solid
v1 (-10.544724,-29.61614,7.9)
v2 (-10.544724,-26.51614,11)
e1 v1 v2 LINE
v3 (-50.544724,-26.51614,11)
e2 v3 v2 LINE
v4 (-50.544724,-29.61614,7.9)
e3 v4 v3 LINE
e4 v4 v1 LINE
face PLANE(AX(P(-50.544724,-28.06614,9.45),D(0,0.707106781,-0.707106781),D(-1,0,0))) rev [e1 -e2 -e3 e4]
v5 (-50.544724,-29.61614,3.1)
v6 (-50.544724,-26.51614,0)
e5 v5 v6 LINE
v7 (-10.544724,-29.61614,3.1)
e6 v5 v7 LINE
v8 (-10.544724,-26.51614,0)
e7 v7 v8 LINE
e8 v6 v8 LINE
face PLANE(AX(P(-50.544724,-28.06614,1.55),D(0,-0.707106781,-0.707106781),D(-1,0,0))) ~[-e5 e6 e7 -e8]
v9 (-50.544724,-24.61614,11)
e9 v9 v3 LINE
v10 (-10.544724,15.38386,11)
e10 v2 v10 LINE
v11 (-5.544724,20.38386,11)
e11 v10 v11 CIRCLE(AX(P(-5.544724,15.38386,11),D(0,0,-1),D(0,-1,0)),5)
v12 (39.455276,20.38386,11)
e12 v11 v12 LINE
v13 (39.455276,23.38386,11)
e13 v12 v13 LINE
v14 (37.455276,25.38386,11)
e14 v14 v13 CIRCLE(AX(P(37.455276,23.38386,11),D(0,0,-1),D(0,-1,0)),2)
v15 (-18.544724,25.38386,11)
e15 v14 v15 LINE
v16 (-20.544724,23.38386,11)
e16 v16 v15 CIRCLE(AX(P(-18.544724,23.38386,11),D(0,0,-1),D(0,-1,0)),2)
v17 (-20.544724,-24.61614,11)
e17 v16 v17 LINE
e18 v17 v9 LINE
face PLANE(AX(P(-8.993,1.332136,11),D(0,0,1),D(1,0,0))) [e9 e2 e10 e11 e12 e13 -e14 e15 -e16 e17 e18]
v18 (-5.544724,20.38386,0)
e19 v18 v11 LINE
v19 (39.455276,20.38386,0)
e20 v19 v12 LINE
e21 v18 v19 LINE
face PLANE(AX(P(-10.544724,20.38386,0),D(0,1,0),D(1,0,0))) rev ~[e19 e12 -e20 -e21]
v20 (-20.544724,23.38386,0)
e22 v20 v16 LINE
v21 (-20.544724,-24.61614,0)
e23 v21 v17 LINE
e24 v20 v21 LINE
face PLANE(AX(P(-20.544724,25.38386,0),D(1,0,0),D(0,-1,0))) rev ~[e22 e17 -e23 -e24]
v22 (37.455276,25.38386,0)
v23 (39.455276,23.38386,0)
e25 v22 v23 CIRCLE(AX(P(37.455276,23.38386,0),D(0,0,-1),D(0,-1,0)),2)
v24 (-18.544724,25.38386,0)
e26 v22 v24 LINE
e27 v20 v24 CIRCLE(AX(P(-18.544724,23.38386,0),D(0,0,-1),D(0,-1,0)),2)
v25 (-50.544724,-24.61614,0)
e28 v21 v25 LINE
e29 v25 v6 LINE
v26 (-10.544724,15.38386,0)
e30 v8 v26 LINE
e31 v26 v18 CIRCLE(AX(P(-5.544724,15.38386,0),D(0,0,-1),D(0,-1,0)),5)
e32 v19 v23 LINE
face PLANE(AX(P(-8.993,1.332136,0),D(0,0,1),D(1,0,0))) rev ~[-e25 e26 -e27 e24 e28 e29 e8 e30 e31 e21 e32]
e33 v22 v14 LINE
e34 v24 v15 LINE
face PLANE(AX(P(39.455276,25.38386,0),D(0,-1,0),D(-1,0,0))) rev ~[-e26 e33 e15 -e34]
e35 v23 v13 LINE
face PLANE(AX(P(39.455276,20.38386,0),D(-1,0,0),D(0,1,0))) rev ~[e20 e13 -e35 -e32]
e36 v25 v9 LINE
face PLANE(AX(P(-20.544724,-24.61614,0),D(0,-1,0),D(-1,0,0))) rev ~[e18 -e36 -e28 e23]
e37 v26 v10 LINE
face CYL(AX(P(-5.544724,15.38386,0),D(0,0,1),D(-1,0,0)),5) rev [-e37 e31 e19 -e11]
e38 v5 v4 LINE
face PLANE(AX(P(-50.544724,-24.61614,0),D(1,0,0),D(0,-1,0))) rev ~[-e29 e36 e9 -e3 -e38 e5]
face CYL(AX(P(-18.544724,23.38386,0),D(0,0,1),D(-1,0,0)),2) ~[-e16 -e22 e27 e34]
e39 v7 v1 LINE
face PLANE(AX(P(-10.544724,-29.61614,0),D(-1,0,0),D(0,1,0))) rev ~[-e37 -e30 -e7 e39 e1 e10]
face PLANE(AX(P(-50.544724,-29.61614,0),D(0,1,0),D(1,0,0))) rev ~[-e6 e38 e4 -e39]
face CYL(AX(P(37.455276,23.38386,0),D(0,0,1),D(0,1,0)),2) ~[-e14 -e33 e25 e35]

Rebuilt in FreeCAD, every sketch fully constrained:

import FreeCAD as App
import Part
import Sketcher
from FreeCAD import Vector
Q = App.Units.Quantity


def edges_at(feature, points):
    """Names of the edges that pass closest to the given points."""
    edges = feature.Shape.Edges
    near = lambda p: min(range(len(edges)), key=lambda i: edges[i].distToShape(Part.Vertex(*p))[0])
    return sorted({f"Edge{near(p) + 1}" for p in points})

doc = App.newDocument("Part")
body = doc.addObject("PartDesign::Body", "Body")

sketch1 = body.newObject("Sketcher::SketchObject", "Sketch")
sketch1.AttachmentSupport = (doc.getObject("XY_Plane"), [""])
sketch1.MapMode = "FlatFace"
sketch1.addGeometry([
    Part.LineSegment(Vector(-51, -25, 0), Vector(-51, -30, 0)),
    Part.LineSegment(Vector(-51, -30, 0), Vector(-11, -30, 0)),
    Part.LineSegment(Vector(-11, -30, 0), Vector(-11, 20, 0)),
    Part.LineSegment(Vector(-11, 20, 0), Vector(39, 20, 0)),
    Part.LineSegment(Vector(39, 20, 0), Vector(39, 25, 0)),
    Part.LineSegment(Vector(39, 25, 0), Vector(-21, 25, 0)),
    Part.LineSegment(Vector(-21, 25, 0), Vector(-21, -25, 0)),
    Part.LineSegment(Vector(-21, -25, 0), Vector(-51, -25, 0)),
], False)
sketch1.addConstraint([
    Sketcher.Constraint("Coincident", 0, 2, 1, 1),
    Sketcher.Constraint("Coincident", 1, 2, 2, 1),
    Sketcher.Constraint("Coincident", 2, 2, 3, 1),
    Sketcher.Constraint("Coincident", 3, 2, 4, 1),
    Sketcher.Constraint("Coincident", 4, 2, 5, 1),
    Sketcher.Constraint("Coincident", 5, 2, 6, 1),
    Sketcher.Constraint("Coincident", 6, 2, 7, 1),
    Sketcher.Constraint("Coincident", 7, 2, 0, 1),
    Sketcher.Constraint("Vertical", 0),
    Sketcher.Constraint("Horizontal", 1),
    Sketcher.Constraint("Vertical", 2),
    Sketcher.Constraint("Horizontal", 3),
    Sketcher.Constraint("Vertical", 4),
    Sketcher.Constraint("Horizontal", 5),
    Sketcher.Constraint("Vertical", 6),
    Sketcher.Constraint("Horizontal", 7),
    Sketcher.Constraint("Equal", 3, 2),
    Sketcher.Constraint("Equal", 0, 4),
    Sketcher.Constraint("DistanceX", 1, 1, 1, 2, Q("40 mm")),
    Sketcher.Constraint("DistanceX", 3, 1, 3, 2, Q("50 mm")),
    Sketcher.Constraint("DistanceX", 5, 2, 5, 1, Q("60 mm")),
    Sketcher.Constraint("DistanceY", 0, 2, 0, 1, Q("5 mm")),
    Sketcher.Constraint("DistanceY", 0, 2, -1, 1, Q("29.61614 mm")),
    Sketcher.Constraint("DistanceX", 0, 2, -1, 1, Q("50.544724 mm")),
])
pad1 = body.newObject("PartDesign::Pad", "Pad")
pad1.Profile = sketch1
pad1.Length = 11
doc.recompute()

chamfer = body.newObject("PartDesign::Chamfer", "Chamfer")
chamfer.Base = (pad1, edges_at(pad1, [(-30.545, -29.616, 0), (-30.545, -29.616, 11)]))
chamfer.Size = 3.1
doc.recompute()

fillet = body.newObject("PartDesign::Fillet", "Fillet")
fillet.Base = (chamfer, edges_at(chamfer, [(39.455, 25.384, 5.5), (-20.545, 25.384, 5.5)]))
fillet.Radius = 2
doc.recompute()

fillet2 = body.newObject("PartDesign::Fillet", "Fillet001")
fillet2.Base = (fillet, edges_at(fillet, [(-10.545, 20.384, 5.5)]))
fillet2.Radius = 5

doc.recompute()
